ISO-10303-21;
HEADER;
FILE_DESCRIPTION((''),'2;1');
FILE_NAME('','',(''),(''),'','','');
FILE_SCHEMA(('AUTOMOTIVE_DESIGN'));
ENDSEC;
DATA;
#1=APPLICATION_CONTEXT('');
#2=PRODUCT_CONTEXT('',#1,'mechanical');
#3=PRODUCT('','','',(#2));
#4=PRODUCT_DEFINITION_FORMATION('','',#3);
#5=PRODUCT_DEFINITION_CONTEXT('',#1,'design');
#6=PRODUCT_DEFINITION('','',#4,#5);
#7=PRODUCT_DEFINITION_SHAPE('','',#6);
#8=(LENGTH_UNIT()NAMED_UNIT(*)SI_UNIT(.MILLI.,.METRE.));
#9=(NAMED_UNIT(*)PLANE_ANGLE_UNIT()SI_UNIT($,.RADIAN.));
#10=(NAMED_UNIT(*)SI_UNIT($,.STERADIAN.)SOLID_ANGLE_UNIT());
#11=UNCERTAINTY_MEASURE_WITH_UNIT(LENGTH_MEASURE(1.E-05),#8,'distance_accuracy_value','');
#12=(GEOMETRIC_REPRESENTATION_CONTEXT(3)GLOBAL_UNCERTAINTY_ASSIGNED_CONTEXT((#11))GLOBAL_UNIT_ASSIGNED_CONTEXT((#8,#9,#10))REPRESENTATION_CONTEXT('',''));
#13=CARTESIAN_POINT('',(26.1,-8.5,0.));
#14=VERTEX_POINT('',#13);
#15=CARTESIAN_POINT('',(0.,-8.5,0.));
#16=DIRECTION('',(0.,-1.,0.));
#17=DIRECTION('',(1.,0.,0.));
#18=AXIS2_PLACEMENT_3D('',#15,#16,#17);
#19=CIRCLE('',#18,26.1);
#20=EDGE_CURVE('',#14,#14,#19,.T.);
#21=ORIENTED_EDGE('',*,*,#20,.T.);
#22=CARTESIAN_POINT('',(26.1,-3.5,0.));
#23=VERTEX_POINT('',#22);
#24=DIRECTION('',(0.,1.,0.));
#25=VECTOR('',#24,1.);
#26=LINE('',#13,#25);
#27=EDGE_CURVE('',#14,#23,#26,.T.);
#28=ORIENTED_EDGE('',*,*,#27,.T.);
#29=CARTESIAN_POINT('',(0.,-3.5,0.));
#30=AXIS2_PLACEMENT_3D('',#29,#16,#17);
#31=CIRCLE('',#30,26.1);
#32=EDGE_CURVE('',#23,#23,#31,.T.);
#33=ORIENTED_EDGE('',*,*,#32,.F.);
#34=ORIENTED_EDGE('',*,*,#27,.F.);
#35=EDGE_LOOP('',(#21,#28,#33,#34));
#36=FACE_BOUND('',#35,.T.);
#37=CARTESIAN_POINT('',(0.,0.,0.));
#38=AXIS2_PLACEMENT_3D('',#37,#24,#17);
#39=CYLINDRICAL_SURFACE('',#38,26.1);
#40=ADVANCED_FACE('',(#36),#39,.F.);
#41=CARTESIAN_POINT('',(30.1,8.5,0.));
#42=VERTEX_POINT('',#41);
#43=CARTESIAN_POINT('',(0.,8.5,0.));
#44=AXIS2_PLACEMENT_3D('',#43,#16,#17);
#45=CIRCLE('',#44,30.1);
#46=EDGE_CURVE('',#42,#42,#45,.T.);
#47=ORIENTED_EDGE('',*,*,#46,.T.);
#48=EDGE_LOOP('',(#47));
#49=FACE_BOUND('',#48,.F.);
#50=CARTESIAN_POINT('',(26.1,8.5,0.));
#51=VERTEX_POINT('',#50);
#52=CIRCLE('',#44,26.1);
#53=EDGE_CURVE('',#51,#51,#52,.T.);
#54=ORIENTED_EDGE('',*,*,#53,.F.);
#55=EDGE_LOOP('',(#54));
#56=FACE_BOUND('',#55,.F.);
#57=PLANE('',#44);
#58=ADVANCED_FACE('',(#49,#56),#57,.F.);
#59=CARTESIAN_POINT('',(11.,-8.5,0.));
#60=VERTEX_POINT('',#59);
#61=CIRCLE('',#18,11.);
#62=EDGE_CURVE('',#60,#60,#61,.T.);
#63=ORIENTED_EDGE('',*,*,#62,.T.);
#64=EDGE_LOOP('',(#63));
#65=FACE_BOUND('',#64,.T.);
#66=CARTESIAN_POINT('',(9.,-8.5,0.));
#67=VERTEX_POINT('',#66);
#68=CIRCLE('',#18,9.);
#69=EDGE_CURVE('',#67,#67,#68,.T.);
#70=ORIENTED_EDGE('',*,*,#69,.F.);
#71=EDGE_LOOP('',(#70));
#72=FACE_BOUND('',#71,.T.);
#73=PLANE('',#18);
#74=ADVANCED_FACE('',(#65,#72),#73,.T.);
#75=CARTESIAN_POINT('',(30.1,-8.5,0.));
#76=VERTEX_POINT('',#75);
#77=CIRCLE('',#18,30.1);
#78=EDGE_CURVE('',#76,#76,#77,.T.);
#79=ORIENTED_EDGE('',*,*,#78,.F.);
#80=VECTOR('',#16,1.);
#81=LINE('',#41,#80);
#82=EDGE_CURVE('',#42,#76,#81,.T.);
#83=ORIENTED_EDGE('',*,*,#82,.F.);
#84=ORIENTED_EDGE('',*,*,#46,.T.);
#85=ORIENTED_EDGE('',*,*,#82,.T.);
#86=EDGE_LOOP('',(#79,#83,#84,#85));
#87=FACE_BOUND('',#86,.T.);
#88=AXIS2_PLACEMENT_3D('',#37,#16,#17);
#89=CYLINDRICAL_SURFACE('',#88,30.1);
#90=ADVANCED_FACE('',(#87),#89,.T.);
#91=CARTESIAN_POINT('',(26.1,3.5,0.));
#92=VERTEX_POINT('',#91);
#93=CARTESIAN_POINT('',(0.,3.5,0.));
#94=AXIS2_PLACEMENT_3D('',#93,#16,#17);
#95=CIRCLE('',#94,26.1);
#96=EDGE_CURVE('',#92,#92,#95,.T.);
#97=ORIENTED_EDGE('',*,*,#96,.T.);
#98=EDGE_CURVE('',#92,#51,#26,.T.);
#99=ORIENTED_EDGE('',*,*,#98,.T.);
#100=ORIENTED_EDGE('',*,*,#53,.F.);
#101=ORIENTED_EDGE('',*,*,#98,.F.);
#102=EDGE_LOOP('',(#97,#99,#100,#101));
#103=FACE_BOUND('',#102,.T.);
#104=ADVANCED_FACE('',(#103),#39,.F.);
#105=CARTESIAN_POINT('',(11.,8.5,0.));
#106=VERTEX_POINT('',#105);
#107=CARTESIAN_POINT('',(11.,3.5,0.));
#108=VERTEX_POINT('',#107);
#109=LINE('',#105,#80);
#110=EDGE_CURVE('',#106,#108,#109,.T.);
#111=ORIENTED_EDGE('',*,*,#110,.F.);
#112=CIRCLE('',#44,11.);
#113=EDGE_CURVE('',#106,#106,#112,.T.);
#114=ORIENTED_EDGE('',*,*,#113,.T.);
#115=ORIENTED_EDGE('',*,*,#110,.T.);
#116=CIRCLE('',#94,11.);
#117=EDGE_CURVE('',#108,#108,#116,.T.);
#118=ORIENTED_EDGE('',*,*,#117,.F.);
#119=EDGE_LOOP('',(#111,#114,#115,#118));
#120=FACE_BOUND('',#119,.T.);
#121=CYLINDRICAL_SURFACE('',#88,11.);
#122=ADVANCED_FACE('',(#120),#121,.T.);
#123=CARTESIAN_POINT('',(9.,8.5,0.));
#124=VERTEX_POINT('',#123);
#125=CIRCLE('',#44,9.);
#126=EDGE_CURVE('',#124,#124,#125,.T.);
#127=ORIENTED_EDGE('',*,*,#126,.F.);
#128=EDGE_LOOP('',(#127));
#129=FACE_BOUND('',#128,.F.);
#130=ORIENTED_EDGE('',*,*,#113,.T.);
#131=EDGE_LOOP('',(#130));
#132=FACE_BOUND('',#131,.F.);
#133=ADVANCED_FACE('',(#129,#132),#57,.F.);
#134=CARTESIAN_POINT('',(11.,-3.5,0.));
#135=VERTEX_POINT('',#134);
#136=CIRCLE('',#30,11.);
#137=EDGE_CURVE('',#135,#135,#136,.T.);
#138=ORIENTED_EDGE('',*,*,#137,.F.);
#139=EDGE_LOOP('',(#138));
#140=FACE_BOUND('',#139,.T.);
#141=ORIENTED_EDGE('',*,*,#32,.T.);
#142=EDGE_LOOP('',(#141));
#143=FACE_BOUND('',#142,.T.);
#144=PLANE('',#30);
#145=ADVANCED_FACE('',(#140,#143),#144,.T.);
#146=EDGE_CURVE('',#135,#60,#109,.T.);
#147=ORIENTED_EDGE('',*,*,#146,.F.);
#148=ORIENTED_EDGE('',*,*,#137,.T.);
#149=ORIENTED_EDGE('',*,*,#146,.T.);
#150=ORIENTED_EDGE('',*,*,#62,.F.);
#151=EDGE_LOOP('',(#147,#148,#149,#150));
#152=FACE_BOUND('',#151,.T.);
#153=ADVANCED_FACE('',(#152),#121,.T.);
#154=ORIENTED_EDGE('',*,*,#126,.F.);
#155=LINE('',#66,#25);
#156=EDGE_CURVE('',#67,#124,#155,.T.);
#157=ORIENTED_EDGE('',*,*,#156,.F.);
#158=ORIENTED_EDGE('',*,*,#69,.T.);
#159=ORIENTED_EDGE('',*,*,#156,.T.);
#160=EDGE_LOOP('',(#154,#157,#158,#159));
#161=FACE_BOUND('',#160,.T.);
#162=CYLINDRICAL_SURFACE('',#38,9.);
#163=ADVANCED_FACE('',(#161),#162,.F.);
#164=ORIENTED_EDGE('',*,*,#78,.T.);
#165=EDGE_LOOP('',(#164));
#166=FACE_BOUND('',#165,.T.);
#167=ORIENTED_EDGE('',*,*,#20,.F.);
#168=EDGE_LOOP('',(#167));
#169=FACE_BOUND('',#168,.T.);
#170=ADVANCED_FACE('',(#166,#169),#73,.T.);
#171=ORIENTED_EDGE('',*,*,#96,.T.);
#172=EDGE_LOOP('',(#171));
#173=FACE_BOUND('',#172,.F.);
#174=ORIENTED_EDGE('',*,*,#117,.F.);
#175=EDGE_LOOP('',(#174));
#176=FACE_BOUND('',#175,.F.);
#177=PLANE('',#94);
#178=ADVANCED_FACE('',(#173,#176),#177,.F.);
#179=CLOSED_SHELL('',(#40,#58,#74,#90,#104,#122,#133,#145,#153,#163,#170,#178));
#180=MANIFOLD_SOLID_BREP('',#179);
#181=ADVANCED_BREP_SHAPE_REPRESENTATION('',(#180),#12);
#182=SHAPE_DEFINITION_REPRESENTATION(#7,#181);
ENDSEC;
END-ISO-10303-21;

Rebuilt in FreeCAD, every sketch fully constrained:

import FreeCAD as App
import Part
import Sketcher

V = App.Vector

doc = App.newDocument("Part")
body = doc.addObject("PartDesign::Body", "Body")

# Sketch on XZ plane
sketch1 = doc.addObject("Sketcher::SketchObject", "Sketch")
body.addObject(sketch1)
sketch1.AttachmentSupport = (doc.XZ_Plane, [""])
sketch1.MapMode = "FlatFace"
sketch1.addGeometry([
    Part.Circle(V(0, 0, 0), V(0, 0, 1), 11),
    Part.Circle(V(0, 0, 0), V(0, 0, 1), 9),
], False)
sketch1.addConstraint([
    Sketcher.Constraint("Coincident", 0, 3, -1, 1),
    Sketcher.Constraint("Coincident", 1, 3, -1, 1),
    Sketcher.Constraint("Diameter", 0, 22.0),
    Sketcher.Constraint("Diameter", 1, 18.0),
])
pad1 = doc.addObject("PartDesign::Pad", "Pad")
body.addObject(pad1)
pad1.Profile = sketch1
pad1.Length = 17
pad1.Midplane = True

# Sketch on XZ plane
sketch2 = doc.addObject("Sketcher::SketchObject", "Sketch001")
body.addObject(sketch2)
sketch2.AttachmentSupport = (doc.XZ_Plane, [""])
sketch2.MapMode = "FlatFace"
sketch2.addGeometry([
    Part.Circle(V(0, 0, 0), V(0, 0, 1), 26),
    Part.Circle(V(0, 0, 0), V(0, 0, 1), 11),
], False)
sketch2.addConstraint([
    Sketcher.Constraint("Coincident", 0, 3, -1, 1),
    Sketcher.Constraint("Coincident", 1, 3, -1, 1),
    Sketcher.Constraint("Diameter", 1, 22.0),
    Sketcher.Constraint("Diameter", 0, 52.2),
])
pad2 = doc.addObject("PartDesign::Pad", "Pad001")
body.addObject(pad2)
pad2.Profile = sketch2
pad2.Length = 7
pad2.Midplane = True

# Sketch on XZ plane
sketch3 = doc.addObject("Sketcher::SketchObject", "Sketch002")
body.addObject(sketch3)
sketch3.AttachmentSupport = (doc.XZ_Plane, [""])
sketch3.MapMode = "FlatFace"
sketch3.addGeometry([
    Part.Circle(V(0, 0, 0), V(0, 0, 1), 30),
    Part.Circle(V(0, 0, 0), V(0, 0, 1), 26),
], False)
sketch3.addConstraint([
    Sketcher.Constraint("Coincident", 0, 3, -1, 1),
    Sketcher.Constraint("Coincident", 1, 3, -1, 1),
    Sketcher.Constraint("Diameter", 0, 60.2),
    Sketcher.Constraint("Diameter", 1, 52.2),
])
pad3 = doc.addObject("PartDesign::Pad", "Pad002")
body.addObject(pad3)
pad3.Profile = sketch3
pad3.Length = 17
pad3.Midplane = True

doc.recompute()
